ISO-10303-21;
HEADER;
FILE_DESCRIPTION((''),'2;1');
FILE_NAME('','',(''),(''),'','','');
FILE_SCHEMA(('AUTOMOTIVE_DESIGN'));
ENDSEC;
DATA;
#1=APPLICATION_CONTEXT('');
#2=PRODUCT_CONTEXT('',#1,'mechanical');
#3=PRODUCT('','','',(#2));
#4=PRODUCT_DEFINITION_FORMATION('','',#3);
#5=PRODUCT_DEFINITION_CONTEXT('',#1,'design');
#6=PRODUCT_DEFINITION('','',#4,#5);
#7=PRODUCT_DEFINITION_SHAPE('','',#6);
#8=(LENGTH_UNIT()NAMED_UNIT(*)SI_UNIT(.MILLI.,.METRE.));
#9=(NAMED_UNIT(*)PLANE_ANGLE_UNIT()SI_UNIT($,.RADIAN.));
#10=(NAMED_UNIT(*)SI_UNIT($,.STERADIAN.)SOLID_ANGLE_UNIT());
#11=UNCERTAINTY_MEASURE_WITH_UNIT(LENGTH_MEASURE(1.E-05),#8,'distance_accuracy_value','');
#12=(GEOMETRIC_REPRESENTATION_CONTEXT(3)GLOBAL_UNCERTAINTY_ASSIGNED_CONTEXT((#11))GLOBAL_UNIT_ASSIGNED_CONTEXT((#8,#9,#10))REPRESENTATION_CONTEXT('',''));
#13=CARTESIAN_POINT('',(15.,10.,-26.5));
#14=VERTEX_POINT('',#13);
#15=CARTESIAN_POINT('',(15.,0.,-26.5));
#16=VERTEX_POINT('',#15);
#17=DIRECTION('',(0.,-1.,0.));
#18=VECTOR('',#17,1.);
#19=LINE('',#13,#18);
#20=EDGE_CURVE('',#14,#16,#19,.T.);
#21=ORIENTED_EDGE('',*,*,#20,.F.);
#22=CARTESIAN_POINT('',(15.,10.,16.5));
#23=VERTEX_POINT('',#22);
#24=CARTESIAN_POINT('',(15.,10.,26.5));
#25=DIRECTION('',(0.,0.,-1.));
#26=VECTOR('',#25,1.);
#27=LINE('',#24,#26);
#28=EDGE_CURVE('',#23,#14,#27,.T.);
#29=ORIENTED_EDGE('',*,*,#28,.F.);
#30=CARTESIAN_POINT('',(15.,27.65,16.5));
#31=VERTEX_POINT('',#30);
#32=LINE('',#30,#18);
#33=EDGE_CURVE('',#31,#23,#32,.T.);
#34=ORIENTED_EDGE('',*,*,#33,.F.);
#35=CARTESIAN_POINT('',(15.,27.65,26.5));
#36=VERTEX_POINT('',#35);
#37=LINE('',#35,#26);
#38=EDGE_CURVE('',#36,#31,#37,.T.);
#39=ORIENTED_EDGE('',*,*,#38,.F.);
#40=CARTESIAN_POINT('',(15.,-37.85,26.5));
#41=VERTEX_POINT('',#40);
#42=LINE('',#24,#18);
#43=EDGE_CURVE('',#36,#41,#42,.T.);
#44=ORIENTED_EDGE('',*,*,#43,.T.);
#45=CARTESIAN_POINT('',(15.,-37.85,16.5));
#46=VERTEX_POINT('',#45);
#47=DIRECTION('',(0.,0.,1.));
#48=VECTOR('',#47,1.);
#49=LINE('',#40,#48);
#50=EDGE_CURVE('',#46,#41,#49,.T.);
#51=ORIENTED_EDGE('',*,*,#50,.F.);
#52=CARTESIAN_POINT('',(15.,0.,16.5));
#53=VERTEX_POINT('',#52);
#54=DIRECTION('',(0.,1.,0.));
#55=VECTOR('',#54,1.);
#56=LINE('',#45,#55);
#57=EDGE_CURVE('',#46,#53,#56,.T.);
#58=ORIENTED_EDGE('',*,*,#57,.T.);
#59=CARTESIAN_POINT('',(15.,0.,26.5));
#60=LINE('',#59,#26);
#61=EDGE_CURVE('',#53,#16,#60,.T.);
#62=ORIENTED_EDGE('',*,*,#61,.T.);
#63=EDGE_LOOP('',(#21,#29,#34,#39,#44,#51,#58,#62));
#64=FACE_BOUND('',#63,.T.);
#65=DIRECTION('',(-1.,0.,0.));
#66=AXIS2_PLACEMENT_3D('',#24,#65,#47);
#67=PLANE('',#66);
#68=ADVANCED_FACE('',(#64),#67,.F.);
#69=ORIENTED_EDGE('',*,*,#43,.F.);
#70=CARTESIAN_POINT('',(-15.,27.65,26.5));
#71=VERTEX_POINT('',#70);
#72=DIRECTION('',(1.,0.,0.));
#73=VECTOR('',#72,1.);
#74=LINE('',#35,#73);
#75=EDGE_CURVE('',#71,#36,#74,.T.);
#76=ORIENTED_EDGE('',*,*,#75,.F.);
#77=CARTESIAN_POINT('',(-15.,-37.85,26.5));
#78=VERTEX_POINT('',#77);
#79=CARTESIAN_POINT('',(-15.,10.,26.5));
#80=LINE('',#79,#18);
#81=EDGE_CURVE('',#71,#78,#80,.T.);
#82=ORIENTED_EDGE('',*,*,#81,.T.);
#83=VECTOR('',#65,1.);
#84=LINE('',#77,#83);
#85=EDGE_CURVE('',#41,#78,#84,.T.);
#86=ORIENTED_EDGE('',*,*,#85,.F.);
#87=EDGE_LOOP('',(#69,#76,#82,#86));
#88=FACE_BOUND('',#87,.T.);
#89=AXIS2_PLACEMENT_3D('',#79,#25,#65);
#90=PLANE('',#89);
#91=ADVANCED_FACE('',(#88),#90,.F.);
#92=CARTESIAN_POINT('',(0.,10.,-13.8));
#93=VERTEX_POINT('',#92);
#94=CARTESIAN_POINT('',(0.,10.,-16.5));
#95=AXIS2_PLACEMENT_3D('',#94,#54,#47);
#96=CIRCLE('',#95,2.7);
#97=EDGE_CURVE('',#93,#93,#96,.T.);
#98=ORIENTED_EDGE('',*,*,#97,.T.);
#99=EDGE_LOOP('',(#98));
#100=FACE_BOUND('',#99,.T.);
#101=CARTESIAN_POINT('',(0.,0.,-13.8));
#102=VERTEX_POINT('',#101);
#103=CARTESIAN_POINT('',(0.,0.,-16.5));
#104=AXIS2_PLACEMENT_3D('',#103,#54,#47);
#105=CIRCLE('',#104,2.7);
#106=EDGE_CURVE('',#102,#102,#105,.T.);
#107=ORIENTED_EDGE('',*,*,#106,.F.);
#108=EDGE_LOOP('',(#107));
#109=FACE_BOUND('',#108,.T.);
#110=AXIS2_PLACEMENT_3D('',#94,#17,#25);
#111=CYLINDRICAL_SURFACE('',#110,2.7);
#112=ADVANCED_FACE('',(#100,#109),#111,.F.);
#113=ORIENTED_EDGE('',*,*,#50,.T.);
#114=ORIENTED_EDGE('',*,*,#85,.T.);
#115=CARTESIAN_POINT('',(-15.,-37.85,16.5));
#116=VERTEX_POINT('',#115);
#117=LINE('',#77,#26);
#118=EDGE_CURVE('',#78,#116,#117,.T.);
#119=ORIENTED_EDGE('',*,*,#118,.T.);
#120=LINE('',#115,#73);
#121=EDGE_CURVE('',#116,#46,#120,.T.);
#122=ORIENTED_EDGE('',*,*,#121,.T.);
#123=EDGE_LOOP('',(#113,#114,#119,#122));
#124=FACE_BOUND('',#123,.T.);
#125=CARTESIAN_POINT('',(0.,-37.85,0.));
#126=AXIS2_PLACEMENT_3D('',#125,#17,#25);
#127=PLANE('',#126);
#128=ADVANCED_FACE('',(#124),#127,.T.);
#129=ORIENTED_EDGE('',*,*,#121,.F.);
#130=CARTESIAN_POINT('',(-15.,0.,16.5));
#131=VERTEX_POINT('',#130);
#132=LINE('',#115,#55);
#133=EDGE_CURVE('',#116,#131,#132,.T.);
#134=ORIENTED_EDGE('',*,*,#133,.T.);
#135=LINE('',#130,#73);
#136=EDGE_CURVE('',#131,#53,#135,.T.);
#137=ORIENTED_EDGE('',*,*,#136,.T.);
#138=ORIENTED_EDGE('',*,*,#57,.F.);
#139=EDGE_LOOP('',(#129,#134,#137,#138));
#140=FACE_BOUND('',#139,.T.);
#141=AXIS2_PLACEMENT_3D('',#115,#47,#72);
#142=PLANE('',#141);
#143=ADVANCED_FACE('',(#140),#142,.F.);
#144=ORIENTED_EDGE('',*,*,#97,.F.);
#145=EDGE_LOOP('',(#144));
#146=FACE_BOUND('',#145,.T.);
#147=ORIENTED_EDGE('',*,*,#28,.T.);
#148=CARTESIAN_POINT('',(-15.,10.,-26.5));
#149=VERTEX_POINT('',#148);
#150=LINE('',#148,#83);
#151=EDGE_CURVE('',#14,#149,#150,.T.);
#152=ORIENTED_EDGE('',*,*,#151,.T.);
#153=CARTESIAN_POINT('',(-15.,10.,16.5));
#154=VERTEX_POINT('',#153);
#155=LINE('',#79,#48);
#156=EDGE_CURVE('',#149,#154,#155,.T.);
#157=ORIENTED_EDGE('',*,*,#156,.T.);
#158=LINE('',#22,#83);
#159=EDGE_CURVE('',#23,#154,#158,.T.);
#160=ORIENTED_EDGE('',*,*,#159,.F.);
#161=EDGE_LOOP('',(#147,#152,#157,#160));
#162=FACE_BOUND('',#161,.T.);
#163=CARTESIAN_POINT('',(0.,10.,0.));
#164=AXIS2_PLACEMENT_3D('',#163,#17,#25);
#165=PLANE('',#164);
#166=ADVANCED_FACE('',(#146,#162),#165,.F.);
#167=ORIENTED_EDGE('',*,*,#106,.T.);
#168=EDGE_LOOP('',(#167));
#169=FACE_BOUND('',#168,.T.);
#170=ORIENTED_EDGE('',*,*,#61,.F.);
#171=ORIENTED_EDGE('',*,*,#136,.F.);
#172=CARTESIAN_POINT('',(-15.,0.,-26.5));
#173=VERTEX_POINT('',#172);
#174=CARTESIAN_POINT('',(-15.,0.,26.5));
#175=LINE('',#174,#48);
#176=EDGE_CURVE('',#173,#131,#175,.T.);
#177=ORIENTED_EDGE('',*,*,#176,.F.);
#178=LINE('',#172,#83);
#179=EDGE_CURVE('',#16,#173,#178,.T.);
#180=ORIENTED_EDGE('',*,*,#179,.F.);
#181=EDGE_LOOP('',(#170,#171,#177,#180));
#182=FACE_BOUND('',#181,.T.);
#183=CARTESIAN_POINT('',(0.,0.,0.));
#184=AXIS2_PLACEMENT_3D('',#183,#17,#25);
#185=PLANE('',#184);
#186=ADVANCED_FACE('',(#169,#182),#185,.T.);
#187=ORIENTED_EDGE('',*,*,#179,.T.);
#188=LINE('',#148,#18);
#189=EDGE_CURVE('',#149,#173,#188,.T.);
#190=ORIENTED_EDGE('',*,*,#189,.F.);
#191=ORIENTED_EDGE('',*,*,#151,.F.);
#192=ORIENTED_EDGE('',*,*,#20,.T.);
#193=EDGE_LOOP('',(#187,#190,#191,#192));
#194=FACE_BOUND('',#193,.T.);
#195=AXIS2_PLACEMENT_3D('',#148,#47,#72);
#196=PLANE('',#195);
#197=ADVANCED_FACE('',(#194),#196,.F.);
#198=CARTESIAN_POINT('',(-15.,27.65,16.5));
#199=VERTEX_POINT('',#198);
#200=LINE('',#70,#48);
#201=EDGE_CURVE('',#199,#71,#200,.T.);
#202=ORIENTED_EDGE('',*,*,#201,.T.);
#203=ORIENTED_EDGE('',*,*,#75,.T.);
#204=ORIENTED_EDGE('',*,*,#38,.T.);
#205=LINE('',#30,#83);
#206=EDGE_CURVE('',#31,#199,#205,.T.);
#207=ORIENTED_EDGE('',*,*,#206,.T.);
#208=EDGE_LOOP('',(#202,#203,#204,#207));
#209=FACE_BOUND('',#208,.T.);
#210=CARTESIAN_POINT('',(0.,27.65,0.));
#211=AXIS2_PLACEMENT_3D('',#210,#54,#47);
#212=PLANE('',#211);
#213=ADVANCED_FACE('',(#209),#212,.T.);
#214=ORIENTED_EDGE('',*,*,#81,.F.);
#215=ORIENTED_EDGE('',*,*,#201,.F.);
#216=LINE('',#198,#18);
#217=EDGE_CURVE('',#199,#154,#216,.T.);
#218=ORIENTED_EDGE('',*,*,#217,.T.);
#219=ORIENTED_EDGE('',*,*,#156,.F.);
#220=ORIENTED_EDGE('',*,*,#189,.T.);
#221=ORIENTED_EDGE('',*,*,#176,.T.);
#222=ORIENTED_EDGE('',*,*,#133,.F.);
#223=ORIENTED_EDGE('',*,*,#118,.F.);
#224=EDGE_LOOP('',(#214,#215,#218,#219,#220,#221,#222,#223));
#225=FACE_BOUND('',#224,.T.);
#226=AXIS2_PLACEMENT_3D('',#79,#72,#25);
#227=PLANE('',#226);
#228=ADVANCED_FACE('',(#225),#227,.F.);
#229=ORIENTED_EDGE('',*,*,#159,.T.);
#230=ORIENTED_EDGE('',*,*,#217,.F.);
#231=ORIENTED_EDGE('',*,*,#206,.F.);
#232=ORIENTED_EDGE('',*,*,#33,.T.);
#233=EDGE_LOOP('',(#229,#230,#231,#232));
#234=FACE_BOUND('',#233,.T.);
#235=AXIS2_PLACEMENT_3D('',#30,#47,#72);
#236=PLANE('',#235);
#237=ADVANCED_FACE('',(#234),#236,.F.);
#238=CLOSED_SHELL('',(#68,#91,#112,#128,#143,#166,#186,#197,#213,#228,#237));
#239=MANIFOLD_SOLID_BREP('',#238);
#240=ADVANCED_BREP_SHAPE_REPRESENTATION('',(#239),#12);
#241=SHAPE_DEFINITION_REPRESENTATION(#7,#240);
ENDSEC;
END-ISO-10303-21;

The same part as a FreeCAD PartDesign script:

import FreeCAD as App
import Part
import Sketcher
Q = App.Units.Quantity

doc = App.newDocument("Part")
body = doc.addObject("PartDesign::Body", "Body")

# Sketch on XZ plane
sketch1 = body.newObject("Sketcher::SketchObject", "Sketch")
sketch1.AttachmentSupport = (doc.getObject("XZ_Plane"), [""])
sketch1.MapMode = "FlatFace"
sketch1.addGeometry(Part.LineSegment(App.Vector(-15, -26.5, 0), App.Vector(-15, 26.5, 0)), False)
sketch1.addGeometry(Part.LineSegment(App.Vector(-15, 26.5, 0), App.Vector(15, 26.5, 0)), False)
sketch1.addGeometry(Part.LineSegment(App.Vector(15, 26.5, 0), App.Vector(15, -26.5, 0)), False)
sketch1.addGeometry(Part.LineSegment(App.Vector(15, -26.5, 0), App.Vector(-15, -26.5, 0)), False)
sketch1.addGeometry(Part.Circle(App.Vector(0, -16.5, 0), App.Vector(0, 0, 1), 2.7), False)
sketch1.addConstraint(Sketcher.Constraint("Coincident", 0, 2, 1, 1))
sketch1.addConstraint(Sketcher.Constraint("Coincident", 1, 2, 2, 1))
sketch1.addConstraint(Sketcher.Constraint("Coincident", 2, 2, 3, 1))
sketch1.addConstraint(Sketcher.Constraint("Coincident", 3, 2, 0, 1))
sketch1.addConstraint(Sketcher.Constraint("Vertical", 0))
sketch1.addConstraint(Sketcher.Constraint("Horizontal", 1))
sketch1.addConstraint(Sketcher.Constraint("Vertical", 2))
sketch1.addConstraint(Sketcher.Constraint("Horizontal", 3))
sketch1.addConstraint(Sketcher.Constraint("Symmetric", 0, 2, 2, 2, -1, 1))
sketch1.addConstraint(Sketcher.Constraint("PointOnObject", 4, 3, -2))
sketch1.addConstraint(Sketcher.Constraint("Diameter", 4, Q("5.4 mm")))
sketch1.addConstraint(Sketcher.Constraint("DistanceX", 1, 1, 1, 2, Q("30 mm")))
sketch1.addConstraint(Sketcher.Constraint("DistanceY", 0, 1, 0, 2, Q("53 mm")))
sketch1.addConstraint(Sketcher.Constraint("DistanceY", 4, 3, 0, 2, Q("43 mm")))
pad1 = body.newObject("PartDesign::Pad", "Pad")
pad1.Profile = sketch1
pad1.Length = 10
pad1.Reversed = True

# Sketch on XZ plane
sketch2 = body.newObject("Sketcher::SketchObject", "Sketch001")
sketch2.AttachmentSupport = (doc.getObject("XZ_Plane"), [""])
sketch2.MapMode = "FlatFace"
sketch2.AttachmentOffset = App.Placement(App.Vector(0, 0, -10), App.Rotation())
sketch2.addGeometry(Part.LineSegment(App.Vector(-15, 16, 0), App.Vector(-15, 26, 0)), False)
sketch2.addGeometry(Part.LineSegment(App.Vector(-15, 26, 0), App.Vector(15, 26, 0)), False)
sketch2.addGeometry(Part.LineSegment(App.Vector(15, 26, 0), App.Vector(15, 16, 0)), False)
sketch2.addGeometry(Part.LineSegment(App.Vector(15, 16, 0), App.Vector(-15, 16, 0)), False)
sketch2.addConstraint(Sketcher.Constraint("Coincident", 0, 2, 1, 1))
sketch2.addConstraint(Sketcher.Constraint("Coincident", 1, 2, 2, 1))
sketch2.addConstraint(Sketcher.Constraint("Coincident", 2, 2, 3, 1))
sketch2.addConstraint(Sketcher.Constraint("Coincident", 3, 2, 0, 1))
sketch2.addConstraint(Sketcher.Constraint("Vertical", 0))
sketch2.addConstraint(Sketcher.Constraint("Horizontal", 1))
sketch2.addConstraint(Sketcher.Constraint("Vertical", 2))
sketch2.addConstraint(Sketcher.Constraint("Horizontal", 3))
sketch2.addConstraint(Sketcher.Constraint("DistanceX", 1, 1, 1, 2, Q("30 mm")))
sketch2.addConstraint(Sketcher.Constraint("DistanceY", 0, 1, 0, 2, Q("10 mm")))
sketch2.addConstraint(Sketcher.Constraint("DistanceX", 0, 2, -1, 1, Q("15 mm")))
sketch2.addConstraint(Sketcher.Constraint("DistanceY", -1, 1, 0, 2, Q("26.5 mm")))
pad2 = body.newObject("PartDesign::Pad", "Pad001")
pad2.Profile = sketch2
pad2.Length = 17.65
pad2.Reversed = True

# Sketch on XZ plane
sketch3 = body.newObject("Sketcher::SketchObject", "Sketch002")
sketch3.AttachmentSupport = (doc.getObject("XZ_Plane"), [""])
sketch3.MapMode = "FlatFace"
sketch3.addGeometry(Part.LineSegment(App.Vector(-15, 26, 0), App.Vector(-15, 16, 0)), False)
sketch3.addGeometry(Part.LineSegment(App.Vector(-15, 16, 0), App.Vector(15, 16, 0)), False)
sketch3.addGeometry(Part.LineSegment(App.Vector(15, 16, 0), App.Vector(15, 26, 0)), False)
sketch3.addGeometry(Part.LineSegment(App.Vector(15, 26, 0), App.Vector(-15, 26, 0)), False)
sketch3.addConstraint(Sketcher.Constraint("Coincident", 0, 2, 1, 1))
sketch3.addConstraint(Sketcher.Constraint("Coincident", 1, 2, 2, 1))
sketch3.addConstraint(Sketcher.Constraint("Coincident", 2, 2, 3, 1))
sketch3.addConstraint(Sketcher.Constraint("Coincident", 3, 2, 0, 1))
sketch3.addConstraint(Sketcher.Constraint("Vertical", 0))
sketch3.addConstraint(Sketcher.Constraint("Horizontal", 1))
sketch3.addConstraint(Sketcher.Constraint("Vertical", 2))
sketch3.addConstraint(Sketcher.Constraint("Horizontal", 3))
sketch3.addConstraint(Sketcher.Constraint("DistanceX", 1, 1, 1, 2, Q("30 mm")))
sketch3.addConstraint(Sketcher.Constraint("DistanceY", 0, 2, 0, 1, Q("10 mm")))
sketch3.addConstraint(Sketcher.Constraint("DistanceX", 0, 2, -1, 1, Q("15 mm")))
sketch3.addConstraint(Sketcher.Constraint("DistanceY", -1, 1, 0, 2, Q("16.5 mm")))
pad3 = body.newObject("PartDesign::Pad", "Pad002")
pad3.Profile = sketch3
pad3.Length = 37.85

doc.recompute()
